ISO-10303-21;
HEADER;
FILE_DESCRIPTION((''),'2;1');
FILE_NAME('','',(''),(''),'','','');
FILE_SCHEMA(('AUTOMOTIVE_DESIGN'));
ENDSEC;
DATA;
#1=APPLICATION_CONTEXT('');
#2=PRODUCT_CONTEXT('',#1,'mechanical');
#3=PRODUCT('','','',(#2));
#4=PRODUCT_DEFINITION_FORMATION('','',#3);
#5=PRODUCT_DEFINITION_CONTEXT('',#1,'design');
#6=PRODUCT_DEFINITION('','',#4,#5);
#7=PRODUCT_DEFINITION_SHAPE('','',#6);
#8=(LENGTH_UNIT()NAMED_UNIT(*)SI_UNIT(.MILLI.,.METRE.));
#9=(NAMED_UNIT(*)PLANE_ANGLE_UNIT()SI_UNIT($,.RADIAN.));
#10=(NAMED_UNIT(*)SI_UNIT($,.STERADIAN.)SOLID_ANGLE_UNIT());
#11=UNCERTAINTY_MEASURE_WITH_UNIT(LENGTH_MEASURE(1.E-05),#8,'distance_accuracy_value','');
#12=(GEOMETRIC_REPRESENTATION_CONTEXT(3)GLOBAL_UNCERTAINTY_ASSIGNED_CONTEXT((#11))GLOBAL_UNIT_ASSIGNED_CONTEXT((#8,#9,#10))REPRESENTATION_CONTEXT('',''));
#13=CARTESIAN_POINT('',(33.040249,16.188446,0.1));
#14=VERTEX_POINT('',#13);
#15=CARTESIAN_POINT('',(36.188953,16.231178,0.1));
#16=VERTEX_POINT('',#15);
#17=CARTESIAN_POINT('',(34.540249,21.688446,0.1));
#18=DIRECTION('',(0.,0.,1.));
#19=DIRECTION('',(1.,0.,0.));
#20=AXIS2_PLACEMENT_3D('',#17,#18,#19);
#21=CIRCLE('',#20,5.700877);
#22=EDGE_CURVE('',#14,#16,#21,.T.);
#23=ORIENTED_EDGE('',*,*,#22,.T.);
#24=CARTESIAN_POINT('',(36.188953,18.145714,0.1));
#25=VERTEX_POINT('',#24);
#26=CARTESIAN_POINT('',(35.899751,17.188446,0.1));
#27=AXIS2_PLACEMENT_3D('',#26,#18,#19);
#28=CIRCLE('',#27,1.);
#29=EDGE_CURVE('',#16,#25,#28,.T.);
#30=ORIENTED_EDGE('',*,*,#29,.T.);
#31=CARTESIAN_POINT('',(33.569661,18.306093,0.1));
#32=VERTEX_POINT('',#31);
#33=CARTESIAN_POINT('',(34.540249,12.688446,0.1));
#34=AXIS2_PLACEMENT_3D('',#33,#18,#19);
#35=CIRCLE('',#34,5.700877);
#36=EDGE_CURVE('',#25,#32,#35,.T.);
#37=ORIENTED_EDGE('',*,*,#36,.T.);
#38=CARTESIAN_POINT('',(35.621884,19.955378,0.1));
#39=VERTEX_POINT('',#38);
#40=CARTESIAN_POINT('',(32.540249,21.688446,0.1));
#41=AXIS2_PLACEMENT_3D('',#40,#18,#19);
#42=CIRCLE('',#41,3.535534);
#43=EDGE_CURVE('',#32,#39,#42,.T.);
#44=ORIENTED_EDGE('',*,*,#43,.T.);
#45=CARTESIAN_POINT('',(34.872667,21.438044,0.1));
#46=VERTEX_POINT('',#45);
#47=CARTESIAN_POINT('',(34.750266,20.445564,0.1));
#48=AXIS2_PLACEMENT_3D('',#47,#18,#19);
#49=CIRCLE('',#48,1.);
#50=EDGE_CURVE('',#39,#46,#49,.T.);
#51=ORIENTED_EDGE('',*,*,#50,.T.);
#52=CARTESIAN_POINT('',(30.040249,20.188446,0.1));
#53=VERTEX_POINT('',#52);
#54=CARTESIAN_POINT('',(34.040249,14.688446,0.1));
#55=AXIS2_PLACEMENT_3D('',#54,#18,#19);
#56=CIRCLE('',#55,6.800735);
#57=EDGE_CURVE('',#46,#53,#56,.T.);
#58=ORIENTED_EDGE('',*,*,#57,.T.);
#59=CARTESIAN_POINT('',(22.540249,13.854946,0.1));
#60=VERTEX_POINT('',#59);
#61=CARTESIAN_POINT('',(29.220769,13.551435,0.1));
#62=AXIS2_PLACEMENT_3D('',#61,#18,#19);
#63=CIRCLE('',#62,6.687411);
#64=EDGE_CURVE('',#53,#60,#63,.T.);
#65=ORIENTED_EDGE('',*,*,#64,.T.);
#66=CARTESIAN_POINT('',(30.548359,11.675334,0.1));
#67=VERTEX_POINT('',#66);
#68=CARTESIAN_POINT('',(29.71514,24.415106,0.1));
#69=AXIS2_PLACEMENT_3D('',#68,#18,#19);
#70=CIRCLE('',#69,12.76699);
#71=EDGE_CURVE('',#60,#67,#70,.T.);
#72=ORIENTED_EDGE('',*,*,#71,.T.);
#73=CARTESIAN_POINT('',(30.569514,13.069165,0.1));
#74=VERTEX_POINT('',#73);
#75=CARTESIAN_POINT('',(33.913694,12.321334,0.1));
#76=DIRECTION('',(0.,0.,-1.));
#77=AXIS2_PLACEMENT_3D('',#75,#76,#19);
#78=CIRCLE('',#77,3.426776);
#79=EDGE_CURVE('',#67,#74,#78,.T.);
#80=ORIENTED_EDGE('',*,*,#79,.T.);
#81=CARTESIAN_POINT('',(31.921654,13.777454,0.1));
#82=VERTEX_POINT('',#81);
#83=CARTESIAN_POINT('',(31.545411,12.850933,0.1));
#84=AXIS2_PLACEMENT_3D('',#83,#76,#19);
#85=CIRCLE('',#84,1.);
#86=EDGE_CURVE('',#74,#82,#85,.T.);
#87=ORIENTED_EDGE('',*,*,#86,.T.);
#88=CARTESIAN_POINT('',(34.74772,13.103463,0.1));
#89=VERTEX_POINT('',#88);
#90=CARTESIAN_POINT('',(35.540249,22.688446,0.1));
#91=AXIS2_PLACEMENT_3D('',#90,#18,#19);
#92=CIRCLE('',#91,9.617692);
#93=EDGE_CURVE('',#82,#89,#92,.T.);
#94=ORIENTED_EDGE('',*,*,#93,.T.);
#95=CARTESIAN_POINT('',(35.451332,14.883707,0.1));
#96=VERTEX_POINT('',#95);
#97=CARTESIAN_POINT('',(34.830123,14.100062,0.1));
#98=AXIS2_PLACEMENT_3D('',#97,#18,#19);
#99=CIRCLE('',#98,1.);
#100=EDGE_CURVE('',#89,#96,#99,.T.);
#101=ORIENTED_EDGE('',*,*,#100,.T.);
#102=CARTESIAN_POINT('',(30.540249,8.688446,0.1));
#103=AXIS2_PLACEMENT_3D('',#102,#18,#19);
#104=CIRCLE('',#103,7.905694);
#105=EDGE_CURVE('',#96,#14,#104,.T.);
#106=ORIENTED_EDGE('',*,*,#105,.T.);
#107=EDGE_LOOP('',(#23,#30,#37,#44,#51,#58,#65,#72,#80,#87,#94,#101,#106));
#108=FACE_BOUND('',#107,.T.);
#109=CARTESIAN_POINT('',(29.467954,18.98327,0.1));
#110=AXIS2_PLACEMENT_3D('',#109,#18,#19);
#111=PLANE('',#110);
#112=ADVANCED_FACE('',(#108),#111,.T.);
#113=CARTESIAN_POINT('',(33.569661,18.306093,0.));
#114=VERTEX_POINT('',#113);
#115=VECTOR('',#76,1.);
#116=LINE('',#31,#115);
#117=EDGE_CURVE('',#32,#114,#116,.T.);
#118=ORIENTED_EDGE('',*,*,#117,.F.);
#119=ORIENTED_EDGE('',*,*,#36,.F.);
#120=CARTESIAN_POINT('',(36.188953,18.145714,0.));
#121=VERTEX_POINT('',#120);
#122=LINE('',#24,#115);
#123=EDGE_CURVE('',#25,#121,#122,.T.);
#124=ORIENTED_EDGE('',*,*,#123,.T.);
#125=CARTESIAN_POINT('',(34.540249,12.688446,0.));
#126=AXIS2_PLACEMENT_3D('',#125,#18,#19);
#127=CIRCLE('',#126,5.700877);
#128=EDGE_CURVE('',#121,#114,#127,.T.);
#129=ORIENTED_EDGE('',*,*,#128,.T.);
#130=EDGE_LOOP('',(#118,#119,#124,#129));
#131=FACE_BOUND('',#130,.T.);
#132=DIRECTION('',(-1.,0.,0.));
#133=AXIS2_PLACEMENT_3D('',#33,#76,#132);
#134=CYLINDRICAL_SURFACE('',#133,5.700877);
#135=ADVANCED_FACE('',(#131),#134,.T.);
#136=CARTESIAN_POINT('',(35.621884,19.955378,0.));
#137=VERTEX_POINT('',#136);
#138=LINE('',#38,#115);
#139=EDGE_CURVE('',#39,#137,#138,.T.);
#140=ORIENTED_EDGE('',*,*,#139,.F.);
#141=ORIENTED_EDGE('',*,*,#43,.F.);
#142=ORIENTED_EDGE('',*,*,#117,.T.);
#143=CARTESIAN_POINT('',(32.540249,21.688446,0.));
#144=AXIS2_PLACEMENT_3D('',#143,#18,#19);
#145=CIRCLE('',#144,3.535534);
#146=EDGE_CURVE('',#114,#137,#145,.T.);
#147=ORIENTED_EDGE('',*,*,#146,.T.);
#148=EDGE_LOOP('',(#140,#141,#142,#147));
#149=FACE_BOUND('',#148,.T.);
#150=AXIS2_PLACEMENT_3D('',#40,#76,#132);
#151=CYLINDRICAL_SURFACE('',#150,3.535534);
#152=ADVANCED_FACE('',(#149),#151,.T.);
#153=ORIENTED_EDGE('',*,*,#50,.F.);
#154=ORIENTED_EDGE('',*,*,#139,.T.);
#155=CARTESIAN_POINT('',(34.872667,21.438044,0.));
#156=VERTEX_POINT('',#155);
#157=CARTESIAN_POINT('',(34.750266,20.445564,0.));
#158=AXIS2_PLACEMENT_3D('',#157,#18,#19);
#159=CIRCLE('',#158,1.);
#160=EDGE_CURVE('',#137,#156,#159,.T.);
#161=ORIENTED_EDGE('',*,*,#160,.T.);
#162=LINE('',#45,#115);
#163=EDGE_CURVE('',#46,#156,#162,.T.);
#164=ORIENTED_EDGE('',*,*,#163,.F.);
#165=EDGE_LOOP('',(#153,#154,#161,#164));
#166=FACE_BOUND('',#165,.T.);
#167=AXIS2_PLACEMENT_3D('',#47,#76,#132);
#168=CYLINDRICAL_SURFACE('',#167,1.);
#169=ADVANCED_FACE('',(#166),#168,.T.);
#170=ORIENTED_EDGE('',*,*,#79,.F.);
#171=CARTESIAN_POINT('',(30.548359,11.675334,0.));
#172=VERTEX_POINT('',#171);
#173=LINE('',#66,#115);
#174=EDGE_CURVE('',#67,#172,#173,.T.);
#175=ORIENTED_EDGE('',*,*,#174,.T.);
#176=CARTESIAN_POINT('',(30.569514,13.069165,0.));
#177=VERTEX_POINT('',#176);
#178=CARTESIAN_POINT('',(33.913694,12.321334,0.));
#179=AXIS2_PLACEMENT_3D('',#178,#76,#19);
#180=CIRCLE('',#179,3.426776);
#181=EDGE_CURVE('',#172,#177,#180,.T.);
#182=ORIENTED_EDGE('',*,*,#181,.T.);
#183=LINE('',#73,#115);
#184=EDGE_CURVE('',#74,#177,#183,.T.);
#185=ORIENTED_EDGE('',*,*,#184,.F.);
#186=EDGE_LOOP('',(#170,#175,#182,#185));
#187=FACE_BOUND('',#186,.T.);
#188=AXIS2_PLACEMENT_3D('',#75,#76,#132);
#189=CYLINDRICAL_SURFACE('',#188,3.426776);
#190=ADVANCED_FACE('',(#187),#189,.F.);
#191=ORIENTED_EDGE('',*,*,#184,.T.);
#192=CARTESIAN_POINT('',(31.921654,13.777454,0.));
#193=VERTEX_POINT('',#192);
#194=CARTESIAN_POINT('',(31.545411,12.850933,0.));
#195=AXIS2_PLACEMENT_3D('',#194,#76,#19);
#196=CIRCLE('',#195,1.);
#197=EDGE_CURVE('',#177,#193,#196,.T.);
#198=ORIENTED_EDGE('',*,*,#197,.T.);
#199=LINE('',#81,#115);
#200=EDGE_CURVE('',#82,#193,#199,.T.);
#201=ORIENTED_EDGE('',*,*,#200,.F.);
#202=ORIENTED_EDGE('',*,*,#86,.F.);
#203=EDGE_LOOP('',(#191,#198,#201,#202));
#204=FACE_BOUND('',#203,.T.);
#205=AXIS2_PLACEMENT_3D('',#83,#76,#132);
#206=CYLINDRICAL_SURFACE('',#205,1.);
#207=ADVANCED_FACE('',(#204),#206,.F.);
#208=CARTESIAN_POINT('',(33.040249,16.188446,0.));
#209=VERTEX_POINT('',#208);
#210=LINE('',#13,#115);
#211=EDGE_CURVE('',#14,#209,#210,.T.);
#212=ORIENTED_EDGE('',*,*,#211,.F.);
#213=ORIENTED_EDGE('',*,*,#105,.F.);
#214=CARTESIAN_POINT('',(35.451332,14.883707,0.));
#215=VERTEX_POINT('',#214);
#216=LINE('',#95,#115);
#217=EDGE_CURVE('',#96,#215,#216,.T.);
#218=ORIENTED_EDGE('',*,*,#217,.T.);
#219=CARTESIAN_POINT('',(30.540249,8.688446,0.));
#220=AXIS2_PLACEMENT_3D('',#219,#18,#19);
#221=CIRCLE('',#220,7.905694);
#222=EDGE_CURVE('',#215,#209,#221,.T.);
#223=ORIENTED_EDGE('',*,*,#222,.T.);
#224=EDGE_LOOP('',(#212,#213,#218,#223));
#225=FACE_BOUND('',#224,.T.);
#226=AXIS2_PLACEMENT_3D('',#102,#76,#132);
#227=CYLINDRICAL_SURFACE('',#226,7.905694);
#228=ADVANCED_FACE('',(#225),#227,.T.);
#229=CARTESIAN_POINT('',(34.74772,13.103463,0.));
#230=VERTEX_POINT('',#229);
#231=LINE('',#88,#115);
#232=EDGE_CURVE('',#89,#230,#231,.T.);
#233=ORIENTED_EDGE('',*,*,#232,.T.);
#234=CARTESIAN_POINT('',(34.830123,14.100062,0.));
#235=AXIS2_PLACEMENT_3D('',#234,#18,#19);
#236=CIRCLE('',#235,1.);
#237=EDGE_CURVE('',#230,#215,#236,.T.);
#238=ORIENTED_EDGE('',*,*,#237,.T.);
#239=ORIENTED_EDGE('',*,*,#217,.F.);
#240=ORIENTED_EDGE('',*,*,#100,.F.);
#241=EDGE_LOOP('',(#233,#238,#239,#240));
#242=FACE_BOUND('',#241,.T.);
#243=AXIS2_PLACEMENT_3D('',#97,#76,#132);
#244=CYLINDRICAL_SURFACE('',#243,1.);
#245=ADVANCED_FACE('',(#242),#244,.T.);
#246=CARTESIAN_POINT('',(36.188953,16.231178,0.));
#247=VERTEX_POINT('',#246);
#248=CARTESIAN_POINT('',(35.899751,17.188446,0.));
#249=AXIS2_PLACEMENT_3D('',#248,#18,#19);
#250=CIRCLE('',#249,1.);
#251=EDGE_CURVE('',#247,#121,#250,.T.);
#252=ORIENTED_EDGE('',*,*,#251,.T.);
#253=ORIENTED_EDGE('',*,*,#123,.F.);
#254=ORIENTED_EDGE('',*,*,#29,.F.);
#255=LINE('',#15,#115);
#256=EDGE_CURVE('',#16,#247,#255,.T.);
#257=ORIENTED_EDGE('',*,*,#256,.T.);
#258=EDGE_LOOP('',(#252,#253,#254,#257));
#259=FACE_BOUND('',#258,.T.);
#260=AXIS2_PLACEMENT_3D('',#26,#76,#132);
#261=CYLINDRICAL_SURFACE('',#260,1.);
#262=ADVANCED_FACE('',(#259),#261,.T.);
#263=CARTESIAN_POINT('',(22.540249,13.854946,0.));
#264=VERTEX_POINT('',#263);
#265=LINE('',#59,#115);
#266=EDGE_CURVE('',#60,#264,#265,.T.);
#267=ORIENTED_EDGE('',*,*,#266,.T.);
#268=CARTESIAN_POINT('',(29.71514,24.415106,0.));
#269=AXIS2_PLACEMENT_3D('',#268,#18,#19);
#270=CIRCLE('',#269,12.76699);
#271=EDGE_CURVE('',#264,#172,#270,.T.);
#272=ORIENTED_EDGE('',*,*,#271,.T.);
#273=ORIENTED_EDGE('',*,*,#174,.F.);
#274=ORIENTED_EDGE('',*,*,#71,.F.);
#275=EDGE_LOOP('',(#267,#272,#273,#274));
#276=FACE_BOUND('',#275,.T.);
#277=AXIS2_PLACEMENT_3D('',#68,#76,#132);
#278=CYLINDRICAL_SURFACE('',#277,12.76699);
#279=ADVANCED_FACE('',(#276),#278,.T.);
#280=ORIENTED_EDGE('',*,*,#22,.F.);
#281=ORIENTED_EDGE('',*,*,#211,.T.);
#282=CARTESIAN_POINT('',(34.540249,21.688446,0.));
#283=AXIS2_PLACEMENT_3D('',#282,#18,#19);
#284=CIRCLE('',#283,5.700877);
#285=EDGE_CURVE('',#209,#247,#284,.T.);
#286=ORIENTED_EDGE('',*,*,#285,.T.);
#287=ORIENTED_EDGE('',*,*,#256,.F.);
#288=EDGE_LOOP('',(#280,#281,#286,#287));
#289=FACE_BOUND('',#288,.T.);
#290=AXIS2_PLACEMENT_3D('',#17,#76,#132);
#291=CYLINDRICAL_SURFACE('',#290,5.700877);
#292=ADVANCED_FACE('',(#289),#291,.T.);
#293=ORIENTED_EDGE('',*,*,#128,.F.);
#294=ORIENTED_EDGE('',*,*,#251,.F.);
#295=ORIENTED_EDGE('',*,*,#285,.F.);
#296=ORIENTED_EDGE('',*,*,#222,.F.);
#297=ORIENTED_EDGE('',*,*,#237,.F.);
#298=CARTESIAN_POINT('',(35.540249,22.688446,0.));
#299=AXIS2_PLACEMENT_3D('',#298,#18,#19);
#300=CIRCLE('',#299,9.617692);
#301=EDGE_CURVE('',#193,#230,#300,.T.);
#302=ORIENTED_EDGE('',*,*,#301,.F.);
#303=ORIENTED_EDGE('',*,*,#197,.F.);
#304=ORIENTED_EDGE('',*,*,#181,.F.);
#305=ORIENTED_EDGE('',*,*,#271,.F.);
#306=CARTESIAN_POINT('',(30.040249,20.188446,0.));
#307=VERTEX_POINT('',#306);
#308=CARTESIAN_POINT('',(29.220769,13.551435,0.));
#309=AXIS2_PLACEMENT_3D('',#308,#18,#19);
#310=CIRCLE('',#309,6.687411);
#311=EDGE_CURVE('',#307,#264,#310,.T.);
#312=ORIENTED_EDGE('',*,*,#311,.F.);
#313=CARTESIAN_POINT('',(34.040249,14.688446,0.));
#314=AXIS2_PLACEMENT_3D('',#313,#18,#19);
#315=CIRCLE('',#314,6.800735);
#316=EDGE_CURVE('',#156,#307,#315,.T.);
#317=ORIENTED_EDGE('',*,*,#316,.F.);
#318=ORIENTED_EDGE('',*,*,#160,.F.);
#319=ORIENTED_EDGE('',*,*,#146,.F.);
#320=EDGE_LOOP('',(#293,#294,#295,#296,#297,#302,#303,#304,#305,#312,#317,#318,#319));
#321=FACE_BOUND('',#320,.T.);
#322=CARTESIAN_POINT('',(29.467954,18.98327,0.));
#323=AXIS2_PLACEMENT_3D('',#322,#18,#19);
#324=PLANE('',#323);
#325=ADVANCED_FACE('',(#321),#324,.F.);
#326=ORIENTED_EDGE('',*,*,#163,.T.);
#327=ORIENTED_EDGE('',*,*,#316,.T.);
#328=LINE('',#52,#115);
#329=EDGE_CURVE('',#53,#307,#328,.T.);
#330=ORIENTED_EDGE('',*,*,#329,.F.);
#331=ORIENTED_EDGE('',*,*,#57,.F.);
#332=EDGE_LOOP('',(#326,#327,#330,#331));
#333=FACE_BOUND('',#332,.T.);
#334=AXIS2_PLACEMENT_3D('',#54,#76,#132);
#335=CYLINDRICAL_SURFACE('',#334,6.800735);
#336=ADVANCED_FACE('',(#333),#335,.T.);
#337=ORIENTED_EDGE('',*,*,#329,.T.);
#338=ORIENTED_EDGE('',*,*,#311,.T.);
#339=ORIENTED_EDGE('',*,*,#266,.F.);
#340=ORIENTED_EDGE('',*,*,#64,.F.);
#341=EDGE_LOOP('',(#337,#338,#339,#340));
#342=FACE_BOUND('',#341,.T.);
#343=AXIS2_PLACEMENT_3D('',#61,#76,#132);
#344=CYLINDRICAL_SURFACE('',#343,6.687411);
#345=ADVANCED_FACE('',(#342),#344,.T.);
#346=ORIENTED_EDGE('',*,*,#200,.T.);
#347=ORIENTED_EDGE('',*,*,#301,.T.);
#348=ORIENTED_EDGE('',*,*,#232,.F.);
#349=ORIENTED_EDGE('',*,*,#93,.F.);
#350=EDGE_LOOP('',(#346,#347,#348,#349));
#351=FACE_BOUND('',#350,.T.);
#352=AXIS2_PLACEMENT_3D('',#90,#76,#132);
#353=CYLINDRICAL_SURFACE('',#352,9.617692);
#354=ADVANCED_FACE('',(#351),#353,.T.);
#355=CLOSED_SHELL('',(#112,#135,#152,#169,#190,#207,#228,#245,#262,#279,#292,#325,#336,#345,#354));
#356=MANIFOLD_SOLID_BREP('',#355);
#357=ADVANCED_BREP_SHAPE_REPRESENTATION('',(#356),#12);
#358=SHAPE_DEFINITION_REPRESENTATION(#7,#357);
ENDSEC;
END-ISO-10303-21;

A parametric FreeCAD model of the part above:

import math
import FreeCAD as App
import Part
import Sketcher

doc = App.newDocument("Part")
body = doc.addObject("PartDesign::Body", "Body")

sketch1 = body.newObject("Sketcher::SketchObject", "Sketch")
sketch1.AttachmentSupport = (doc.getObject("XY_Plane"), [""])
sketch1.MapMode = "FlatFace"
sketch1.addGeometry(Part.ArcOfCircle(Part.Circle(App.Vector(29.71514, 24.415106, 0), App.Vector(0, 0, 1), 12.76699), math.radians(-124.193369), math.radians(-86.258013)), False)
sketch1.addGeometry(Part.ArcOfCircle(Part.Circle(App.Vector(33.913694, 12.321334, 0), App.Vector(0, 0, 1), 3.426776), math.radians(167.394803), math.radians(190.866151)), False)
sketch1.addGeometry(Part.ArcOfCircle(Part.Circle(App.Vector(31.545411, 12.850933, 0), App.Vector(0, 0, 1), 1), math.radians(67.898806), math.radians(167.394803)), False)
sketch1.addGeometry(Part.ArcOfCircle(Part.Circle(App.Vector(35.540249, 22.688446, 0), App.Vector(0, 0, 1), 9.617692), math.radians(-112.101194), math.radians(-94.726716)), False)
sketch1.addGeometry(Part.ArcOfCircle(Part.Circle(App.Vector(34.830123, 14.100062, 0), App.Vector(0, 0, 1), 1), math.radians(-94.726716), math.radians(51.595576)), False)
sketch1.addGeometry(Part.ArcOfCircle(Part.Circle(App.Vector(30.540249, 8.688446, 0), App.Vector(0, 0, 1), 7.905694), math.radians(51.595576), math.radians(71.565051)), False)
sketch1.addGeometry(Part.ArcOfCircle(Part.Circle(App.Vector(34.540249, 21.688446, 0), App.Vector(0, 0, 1), 5.700877), math.radians(-105.255119), math.radians(-73.189826)), False)
sketch1.addGeometry(Part.ArcOfCircle(Part.Circle(App.Vector(35.899751, 17.188446, 0), App.Vector(0, 0, 1), 1), math.radians(-73.189826), math.radians(73.189826)), False)
sketch1.addGeometry(Part.ArcOfCircle(Part.Circle(App.Vector(34.540249, 12.688446, 0), App.Vector(0, 0, 1), 5.700877), math.radians(73.189826), math.radians(99.802497)), False)
sketch1.addGeometry(Part.ArcOfCircle(Part.Circle(App.Vector(32.540249, 21.688446, 0), App.Vector(0, 0, 1), 3.535534), math.radians(-73.072487), math.radians(-29.352782)), False)
sketch1.addGeometry(Part.ArcOfCircle(Part.Circle(App.Vector(34.750266, 20.445564, 0), App.Vector(0, 0, 1), 1), math.radians(-29.352782), math.radians(82.969295)), False)
sketch1.addGeometry(Part.ArcOfCircle(Part.Circle(App.Vector(34.040249, 14.688446, 0), App.Vector(0, 0, 1), 6.800735), math.radians(82.969295), math.radians(126.027373)), False)
sketch1.addGeometry(Part.ArcOfCircle(Part.Circle(App.Vector(29.220769, 13.551435, 0), App.Vector(0, 0, 1), 6.687411), math.radians(82.96124), math.radians(177.398714)), False)
sketch1.addConstraint(Sketcher.Constraint("Coincident", 0, 2, 1, 2))
sketch1.addConstraint(Sketcher.Constraint("Tangent", 1, 1, 2, 2))
sketch1.addConstraint(Sketcher.Constraint("Tangent", 2, 1, 3, 1))
sketch1.addConstraint(Sketcher.Constraint("Tangent", 3, 2, 4, 1))
sketch1.addConstraint(Sketcher.Constraint("Tangent", 4, 2, 5, 1))
sketch1.addConstraint(Sketcher.Constraint("Coincident", 5, 2, 6, 1))
sketch1.addConstraint(Sketcher.Constraint("Tangent", 6, 2, 7, 1))
sketch1.addConstraint(Sketcher.Constraint("Tangent", 7, 2, 8, 1))
sketch1.addConstraint(Sketcher.Constraint("Coincident", 8, 2, 9, 1))
sketch1.addConstraint(Sketcher.Constraint("Tangent", 9, 2, 10, 1))
sketch1.addConstraint(Sketcher.Constraint("Tangent", 10, 2, 11, 1))
sketch1.addConstraint(Sketcher.Constraint("Coincident", 11, 2, 12, 1))
sketch1.addConstraint(Sketcher.Constraint("Coincident", 12, 2, 0, 1))
sketch1.addConstraint(Sketcher.Constraint("Equal", 2, 4))
sketch1.addConstraint(Sketcher.Constraint("Equal", 4, 7))
sketch1.addConstraint(Sketcher.Constraint("Equal", 6, 8))
sketch1.addConstraint(Sketcher.Constraint("Equal", 7, 10))
sketch1.addConstraint(Sketcher.Constraint("Horizontal", 6, 3, 9, 3))
sketch1.addConstraint(Sketcher.Constraint("Vertical", 6, 3, 8, 3))
sketch1.addConstraint(Sketcher.Constraint("Radius", 2, 1.0))
sketch1.addConstraint(Sketcher.Constraint("DistanceX", 5, 3, 3, 3, 5.0))
sketch1.addConstraint(Sketcher.Constraint("DistanceY", 5, 3, 3, 3, 14.0))
sketch1.addConstraint(Sketcher.Constraint("DistanceX", 6, 3, 3, 3, 1.0))
sketch1.addConstraint(Sketcher.Constraint("DistanceY", 6, 3, 3, 3, 1.0))
sketch1.addConstraint(Sketcher.Constraint("DistanceY", 5, 3, 8, 3, 4.0))
sketch1.addConstraint(Sketcher.Constraint("DistanceX", 9, 3, 6, 3, 2.0))
sketch1.addConstraint(Sketcher.Constraint("DistanceY", 8, 3, 11, 3, 2.0))
sketch1.addConstraint(Sketcher.Constraint("DistanceX", 5, 2, 11, 3, 1.0))
sketch1.addConstraint(Sketcher.Constraint("DistanceY", 5, 2, 7, 3, 1.0))
sketch1.addConstraint(Sketcher.Constraint("DistanceX", 11, 3, 8, 3, 0.5))
sketch1.addConstraint(Sketcher.Constraint("DistanceX", 11, 2, 9, 3, 2.5))
sketch1.addConstraint(Sketcher.Constraint("DistanceY", 11, 2, 9, 3, 1.5))
sketch1.addConstraint(Sketcher.Constraint("Radius", 0, 12.76699))
sketch1.addConstraint(Sketcher.Constraint("Radius", 12, 6.687411))
sketch1.addConstraint(Sketcher.Constraint("Radius", 1, 3.426776))
sketch1.addConstraint(Sketcher.Constraint("Radius", 3, 9.617692))
sketch1.addConstraint(Sketcher.Constraint("Radius", 9, 3.535534))
sketch1.addConstraint(Sketcher.Constraint("DistanceY", 0, 2, 1, 3, 0.646))
sketch1.addConstraint(Sketcher.Constraint("DistanceY", 1, 3, 2, 3, 0.5296))
sketch1.addConstraint(Sketcher.Constraint("DistanceY", 2, 3, 12, 3, 0.700502))
sketch1.addConstraint(Sketcher.Constraint("DistanceX", -1, 1, 0, 3, 29.71514))
sketch1.addConstraint(Sketcher.Constraint("DistanceX", -1, 1, 2, 3, 31.545411))
sketch1.addConstraint(Sketcher.Constraint("DistanceX", -1, 1, 3, 3, 35.540249))
sketch1.addConstraint(Sketcher.Constraint("DistanceY", -1, 1, 4, 3, 14.100062))
pad1 = body.newObject("PartDesign::Pad", "Pad")
pad1.Profile = sketch1
pad1.Length = 0.1

doc.recompute()
